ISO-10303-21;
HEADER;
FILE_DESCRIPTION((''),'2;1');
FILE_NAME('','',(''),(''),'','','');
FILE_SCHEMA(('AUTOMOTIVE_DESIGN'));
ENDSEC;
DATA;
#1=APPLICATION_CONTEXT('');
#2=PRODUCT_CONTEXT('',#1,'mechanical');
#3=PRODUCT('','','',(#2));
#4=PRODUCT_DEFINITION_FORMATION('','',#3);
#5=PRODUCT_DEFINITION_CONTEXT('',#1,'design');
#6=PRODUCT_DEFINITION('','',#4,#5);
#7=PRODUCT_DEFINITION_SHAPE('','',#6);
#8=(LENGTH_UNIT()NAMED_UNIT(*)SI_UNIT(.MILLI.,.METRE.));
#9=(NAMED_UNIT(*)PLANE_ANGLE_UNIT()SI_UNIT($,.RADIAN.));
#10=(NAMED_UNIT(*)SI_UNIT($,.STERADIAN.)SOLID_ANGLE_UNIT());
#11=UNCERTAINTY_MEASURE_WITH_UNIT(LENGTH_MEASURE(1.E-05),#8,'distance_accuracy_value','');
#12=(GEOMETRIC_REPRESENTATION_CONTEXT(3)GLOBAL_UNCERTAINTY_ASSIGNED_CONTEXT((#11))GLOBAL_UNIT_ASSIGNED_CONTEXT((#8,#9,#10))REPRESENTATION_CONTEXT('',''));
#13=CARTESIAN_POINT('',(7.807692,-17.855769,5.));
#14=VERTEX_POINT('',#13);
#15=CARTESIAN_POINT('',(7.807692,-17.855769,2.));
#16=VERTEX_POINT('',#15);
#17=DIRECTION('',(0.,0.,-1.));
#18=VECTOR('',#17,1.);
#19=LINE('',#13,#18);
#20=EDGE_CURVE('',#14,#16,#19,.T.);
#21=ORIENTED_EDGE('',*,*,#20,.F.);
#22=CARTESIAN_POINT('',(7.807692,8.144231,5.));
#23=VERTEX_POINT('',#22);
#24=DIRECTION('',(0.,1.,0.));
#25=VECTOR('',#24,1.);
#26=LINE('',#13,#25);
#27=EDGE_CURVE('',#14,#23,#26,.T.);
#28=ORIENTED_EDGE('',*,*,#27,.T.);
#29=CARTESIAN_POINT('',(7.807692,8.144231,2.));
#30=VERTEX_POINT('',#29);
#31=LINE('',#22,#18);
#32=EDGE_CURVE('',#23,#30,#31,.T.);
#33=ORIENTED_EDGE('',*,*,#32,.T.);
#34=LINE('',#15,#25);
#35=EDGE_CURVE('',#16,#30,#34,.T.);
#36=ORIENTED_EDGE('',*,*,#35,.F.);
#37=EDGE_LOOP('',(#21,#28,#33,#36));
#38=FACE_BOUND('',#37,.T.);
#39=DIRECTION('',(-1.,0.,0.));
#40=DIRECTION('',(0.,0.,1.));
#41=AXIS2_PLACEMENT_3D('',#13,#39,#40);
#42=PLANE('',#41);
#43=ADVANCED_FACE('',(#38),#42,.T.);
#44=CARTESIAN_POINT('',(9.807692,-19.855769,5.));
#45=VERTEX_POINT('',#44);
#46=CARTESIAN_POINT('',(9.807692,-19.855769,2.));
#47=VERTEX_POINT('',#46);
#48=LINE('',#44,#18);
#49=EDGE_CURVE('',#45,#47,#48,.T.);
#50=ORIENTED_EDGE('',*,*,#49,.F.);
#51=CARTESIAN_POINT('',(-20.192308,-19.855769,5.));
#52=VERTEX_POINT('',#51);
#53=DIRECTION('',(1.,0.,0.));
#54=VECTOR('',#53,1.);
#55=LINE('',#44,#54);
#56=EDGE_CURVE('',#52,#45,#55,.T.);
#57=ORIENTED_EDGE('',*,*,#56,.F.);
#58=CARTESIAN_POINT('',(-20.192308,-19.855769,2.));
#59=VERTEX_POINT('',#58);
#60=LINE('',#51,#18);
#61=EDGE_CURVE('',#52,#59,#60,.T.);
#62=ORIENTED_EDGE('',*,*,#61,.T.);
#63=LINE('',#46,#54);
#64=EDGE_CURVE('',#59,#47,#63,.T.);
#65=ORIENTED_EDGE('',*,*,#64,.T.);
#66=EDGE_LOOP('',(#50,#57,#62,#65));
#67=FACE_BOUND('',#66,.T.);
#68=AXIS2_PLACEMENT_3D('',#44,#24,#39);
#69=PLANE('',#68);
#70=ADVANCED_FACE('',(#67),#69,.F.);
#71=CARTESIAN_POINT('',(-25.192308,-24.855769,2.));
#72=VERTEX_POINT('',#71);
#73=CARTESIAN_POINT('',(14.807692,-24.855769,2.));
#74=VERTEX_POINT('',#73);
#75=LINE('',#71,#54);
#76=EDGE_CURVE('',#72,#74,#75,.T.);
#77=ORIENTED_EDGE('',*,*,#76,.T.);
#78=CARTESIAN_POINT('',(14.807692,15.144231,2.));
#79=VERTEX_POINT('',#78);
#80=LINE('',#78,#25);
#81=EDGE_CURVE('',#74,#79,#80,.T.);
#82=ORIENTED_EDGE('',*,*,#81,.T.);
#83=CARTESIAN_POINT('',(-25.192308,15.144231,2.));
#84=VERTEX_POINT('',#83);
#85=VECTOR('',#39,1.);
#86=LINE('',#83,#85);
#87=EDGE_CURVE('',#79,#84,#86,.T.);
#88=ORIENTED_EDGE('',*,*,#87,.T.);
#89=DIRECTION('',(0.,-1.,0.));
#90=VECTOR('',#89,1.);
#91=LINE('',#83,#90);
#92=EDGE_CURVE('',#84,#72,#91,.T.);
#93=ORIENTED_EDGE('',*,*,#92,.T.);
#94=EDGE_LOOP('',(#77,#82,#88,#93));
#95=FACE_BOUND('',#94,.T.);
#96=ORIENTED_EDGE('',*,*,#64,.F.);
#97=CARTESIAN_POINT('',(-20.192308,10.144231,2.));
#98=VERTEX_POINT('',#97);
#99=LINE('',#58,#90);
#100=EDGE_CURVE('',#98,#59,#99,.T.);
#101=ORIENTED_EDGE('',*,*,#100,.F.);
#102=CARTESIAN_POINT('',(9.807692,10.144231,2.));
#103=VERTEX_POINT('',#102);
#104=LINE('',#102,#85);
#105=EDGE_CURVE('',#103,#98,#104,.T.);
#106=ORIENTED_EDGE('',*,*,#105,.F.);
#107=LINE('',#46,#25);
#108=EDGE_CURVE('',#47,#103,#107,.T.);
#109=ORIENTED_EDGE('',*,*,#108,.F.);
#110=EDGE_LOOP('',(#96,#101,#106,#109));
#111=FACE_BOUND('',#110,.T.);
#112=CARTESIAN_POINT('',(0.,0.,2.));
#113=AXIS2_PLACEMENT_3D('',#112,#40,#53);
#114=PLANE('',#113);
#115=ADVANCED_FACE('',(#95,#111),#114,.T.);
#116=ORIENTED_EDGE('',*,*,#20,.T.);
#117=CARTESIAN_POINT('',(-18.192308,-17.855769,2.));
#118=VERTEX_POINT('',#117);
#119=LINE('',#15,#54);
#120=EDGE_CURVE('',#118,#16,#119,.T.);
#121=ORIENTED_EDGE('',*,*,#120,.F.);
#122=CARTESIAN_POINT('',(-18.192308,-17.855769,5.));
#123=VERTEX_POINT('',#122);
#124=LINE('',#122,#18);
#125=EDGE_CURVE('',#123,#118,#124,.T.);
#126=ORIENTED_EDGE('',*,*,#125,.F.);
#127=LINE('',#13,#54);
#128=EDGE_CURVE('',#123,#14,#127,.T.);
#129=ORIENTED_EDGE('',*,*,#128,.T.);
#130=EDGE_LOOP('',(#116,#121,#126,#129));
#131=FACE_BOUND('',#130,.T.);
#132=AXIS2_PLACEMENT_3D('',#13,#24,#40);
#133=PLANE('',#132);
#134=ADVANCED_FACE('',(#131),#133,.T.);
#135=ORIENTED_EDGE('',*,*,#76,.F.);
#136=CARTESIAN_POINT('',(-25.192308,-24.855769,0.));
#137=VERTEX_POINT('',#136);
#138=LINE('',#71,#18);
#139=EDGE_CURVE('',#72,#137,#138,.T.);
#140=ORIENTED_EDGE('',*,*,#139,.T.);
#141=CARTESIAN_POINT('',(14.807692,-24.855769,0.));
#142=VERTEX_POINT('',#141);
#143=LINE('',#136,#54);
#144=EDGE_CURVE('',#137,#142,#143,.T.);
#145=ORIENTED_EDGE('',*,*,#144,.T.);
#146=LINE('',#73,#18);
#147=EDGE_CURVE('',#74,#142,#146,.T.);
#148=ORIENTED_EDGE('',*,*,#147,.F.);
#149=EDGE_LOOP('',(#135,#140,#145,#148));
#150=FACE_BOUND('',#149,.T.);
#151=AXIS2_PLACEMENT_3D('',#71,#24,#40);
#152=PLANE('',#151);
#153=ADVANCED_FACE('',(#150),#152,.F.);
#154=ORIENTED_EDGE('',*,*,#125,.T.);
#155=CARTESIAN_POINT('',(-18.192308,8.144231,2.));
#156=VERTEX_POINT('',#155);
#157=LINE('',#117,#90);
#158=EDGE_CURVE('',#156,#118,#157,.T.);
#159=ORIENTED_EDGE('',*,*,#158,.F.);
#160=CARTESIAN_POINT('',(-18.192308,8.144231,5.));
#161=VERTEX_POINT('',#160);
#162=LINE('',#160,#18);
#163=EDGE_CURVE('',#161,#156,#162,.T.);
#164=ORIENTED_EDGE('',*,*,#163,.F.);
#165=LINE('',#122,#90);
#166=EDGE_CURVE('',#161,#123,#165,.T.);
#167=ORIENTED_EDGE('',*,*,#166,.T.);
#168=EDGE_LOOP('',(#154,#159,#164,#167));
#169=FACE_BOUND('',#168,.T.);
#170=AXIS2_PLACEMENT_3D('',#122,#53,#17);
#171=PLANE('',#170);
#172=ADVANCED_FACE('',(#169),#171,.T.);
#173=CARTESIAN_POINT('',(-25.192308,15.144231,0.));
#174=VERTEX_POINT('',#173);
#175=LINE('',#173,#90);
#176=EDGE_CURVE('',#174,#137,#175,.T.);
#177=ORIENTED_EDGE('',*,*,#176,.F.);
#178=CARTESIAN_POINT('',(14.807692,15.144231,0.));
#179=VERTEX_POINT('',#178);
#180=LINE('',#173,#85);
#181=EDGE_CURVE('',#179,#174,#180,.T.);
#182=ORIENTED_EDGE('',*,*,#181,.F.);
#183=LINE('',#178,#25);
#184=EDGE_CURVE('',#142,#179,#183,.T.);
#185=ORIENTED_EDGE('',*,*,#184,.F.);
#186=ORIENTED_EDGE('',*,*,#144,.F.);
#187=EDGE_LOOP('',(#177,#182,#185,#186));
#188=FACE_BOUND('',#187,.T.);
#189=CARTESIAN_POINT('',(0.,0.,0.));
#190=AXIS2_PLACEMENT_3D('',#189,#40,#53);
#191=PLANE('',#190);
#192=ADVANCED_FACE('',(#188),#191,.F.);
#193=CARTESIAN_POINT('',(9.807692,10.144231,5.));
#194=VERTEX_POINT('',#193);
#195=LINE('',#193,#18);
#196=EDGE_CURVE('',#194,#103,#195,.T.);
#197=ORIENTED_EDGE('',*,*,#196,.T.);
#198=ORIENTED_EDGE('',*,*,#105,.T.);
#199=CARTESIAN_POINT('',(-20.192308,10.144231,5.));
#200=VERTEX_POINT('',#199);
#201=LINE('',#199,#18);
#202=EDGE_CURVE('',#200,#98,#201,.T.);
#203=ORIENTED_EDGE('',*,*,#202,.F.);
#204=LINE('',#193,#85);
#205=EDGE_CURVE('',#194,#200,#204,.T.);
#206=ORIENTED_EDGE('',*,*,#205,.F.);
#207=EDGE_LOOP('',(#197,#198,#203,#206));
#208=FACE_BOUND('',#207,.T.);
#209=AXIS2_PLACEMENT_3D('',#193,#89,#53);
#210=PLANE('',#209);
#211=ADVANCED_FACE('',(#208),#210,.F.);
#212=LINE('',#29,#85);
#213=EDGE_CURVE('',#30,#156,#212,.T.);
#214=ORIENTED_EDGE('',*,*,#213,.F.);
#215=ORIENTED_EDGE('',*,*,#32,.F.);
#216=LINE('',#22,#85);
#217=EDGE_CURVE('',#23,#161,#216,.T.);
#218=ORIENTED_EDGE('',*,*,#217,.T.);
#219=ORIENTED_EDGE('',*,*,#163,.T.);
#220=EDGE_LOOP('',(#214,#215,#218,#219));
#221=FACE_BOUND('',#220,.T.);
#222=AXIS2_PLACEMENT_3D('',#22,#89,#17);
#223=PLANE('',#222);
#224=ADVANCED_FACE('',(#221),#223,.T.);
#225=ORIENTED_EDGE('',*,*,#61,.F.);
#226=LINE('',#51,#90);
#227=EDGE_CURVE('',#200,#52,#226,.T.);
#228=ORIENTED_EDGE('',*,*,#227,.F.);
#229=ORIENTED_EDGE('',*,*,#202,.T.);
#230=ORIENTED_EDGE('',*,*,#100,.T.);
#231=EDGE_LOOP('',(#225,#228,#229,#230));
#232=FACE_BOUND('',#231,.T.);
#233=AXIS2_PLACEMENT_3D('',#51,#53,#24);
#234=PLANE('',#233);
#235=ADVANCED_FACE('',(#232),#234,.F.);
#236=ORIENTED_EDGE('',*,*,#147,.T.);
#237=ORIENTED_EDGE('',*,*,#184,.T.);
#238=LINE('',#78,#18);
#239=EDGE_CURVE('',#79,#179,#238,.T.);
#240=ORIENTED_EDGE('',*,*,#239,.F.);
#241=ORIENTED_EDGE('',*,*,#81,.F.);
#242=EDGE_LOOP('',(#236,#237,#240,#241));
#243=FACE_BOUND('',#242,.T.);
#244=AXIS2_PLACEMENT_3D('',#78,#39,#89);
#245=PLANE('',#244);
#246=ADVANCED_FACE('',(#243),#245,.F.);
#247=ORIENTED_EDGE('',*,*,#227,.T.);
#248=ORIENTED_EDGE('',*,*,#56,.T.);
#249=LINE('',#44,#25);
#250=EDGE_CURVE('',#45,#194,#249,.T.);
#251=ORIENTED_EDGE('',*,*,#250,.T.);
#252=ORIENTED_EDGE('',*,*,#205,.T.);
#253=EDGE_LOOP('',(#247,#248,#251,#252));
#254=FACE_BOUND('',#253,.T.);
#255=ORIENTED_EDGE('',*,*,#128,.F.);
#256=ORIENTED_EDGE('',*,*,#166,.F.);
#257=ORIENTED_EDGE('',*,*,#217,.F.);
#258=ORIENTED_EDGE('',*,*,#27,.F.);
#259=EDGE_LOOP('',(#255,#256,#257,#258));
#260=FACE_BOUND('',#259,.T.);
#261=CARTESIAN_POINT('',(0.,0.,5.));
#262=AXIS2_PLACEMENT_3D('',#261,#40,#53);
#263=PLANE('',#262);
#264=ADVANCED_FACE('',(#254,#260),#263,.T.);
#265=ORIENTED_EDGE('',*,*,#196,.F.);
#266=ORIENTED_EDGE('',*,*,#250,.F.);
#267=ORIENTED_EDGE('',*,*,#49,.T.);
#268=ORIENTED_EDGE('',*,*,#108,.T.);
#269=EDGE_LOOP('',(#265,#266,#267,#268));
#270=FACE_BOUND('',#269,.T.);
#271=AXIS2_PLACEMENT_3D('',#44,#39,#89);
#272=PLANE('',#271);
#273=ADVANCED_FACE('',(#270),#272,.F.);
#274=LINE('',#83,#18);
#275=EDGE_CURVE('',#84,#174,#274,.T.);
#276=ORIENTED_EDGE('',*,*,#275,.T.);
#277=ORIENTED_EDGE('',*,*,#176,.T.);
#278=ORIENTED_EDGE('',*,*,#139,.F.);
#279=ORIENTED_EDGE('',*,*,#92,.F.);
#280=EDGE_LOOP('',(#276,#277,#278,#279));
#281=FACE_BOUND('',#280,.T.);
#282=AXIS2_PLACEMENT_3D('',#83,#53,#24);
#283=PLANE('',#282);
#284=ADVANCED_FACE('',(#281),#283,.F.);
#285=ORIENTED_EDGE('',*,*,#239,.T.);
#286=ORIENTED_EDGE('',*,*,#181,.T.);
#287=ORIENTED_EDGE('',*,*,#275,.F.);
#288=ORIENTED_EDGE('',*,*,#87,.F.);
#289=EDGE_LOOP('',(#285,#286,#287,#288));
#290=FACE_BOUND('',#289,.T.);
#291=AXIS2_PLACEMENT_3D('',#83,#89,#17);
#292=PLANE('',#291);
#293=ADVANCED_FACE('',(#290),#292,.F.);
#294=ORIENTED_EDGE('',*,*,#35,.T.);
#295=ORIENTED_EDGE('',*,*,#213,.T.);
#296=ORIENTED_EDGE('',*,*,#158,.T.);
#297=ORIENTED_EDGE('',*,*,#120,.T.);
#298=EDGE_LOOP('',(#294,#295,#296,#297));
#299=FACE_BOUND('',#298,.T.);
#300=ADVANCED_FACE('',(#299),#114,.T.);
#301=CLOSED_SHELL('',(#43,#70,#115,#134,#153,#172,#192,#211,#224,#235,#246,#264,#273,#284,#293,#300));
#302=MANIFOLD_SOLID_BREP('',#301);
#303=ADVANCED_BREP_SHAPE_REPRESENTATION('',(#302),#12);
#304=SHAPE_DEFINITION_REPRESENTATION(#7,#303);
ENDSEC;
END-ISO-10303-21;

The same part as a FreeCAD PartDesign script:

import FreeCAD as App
import Part
import Sketcher

V = App.Vector
Q = App.Units.Quantity

doc = App.newDocument("Part")
body = doc.addObject("PartDesign::Body", "Body")

# Sketch on XY plane
sketch1 = body.newObject("Sketcher::SketchObject", "Sketch")
sketch1.AttachmentSupport = (doc.getObject("XY_Plane"), [""])
sketch1.MapMode = "FlatFace"
sketch1.addGeometry(Part.LineSegment(V(-25, 15, 0), V(-25, -25, 0)), False)
sketch1.addGeometry(Part.LineSegment(V(-25, -25, 0), V(15, -25, 0)), False)
sketch1.addGeometry(Part.LineSegment(V(15, -25, 0), V(15, 15, 0)), False)
sketch1.addGeometry(Part.LineSegment(V(15, 15, 0), V(-25, 15, 0)), False)
sketch1.addConstraint(Sketcher.Constraint("Coincident", 0, 2, 1, 1))
sketch1.addConstraint(Sketcher.Constraint("Coincident", 1, 2, 2, 1))
sketch1.addConstraint(Sketcher.Constraint("Coincident", 2, 2, 3, 1))
sketch1.addConstraint(Sketcher.Constraint("Coincident", 3, 2, 0, 1))
sketch1.addConstraint(Sketcher.Constraint("Vertical", 0))
sketch1.addConstraint(Sketcher.Constraint("Horizontal", 1))
sketch1.addConstraint(Sketcher.Constraint("Vertical", 2))
sketch1.addConstraint(Sketcher.Constraint("Horizontal", 3))
sketch1.addConstraint(Sketcher.Constraint("Equal", 3, 0))
sketch1.addConstraint(Sketcher.Constraint("DistanceX", 1, 1, 1, 2, Q("40 mm")))
sketch1.addConstraint(Sketcher.Constraint("DistanceY", 0, 2, -1, 1, Q("24.855769 mm")))
sketch1.addConstraint(Sketcher.Constraint("DistanceX", 0, 2, -1, 1, Q("25.192308 mm")))
pad1 = body.newObject("PartDesign::Pad", "Pad")
pad1.Profile = sketch1
pad1.Length = 2

# Sketch on XY plane
sketch2 = body.newObject("Sketcher::SketchObject", "Sketch001")
sketch2.AttachmentSupport = (doc.getObject("XY_Plane"), [""])
sketch2.MapMode = "FlatFace"
sketch2.AttachmentOffset = App.Placement(V(0, 0, 2), App.Rotation())
sketch2.addGeometry(Part.LineSegment(V(-20, 10, 0), V(-20, -20, 0)), False)
sketch2.addGeometry(Part.LineSegment(V(-20, -20, 0), V(10, -20, 0)), False)
sketch2.addGeometry(Part.LineSegment(V(10, -20, 0), V(10, 10, 0)), False)
sketch2.addGeometry(Part.LineSegment(V(10, 10, 0), V(-20, 10, 0)), False)
sketch2.addGeometry(Part.LineSegment(V(8, -18, 0), V(-18, -18, 0)), False)
sketch2.addGeometry(Part.LineSegment(V(-18, -18, 0), V(-18, 8, 0)), False)
sketch2.addGeometry(Part.LineSegment(V(-18, 8, 0), V(8, 8, 0)), False)
sketch2.addGeometry(Part.LineSegment(V(8, 8, 0), V(8, -18, 0)), False)
sketch2.addConstraint(Sketcher.Constraint("Coincident", 0, 2, 1, 1))
sketch2.addConstraint(Sketcher.Constraint("Coincident", 1, 2, 2, 1))
sketch2.addConstraint(Sketcher.Constraint("Coincident", 2, 2, 3, 1))
sketch2.addConstraint(Sketcher.Constraint("Coincident", 3, 2, 0, 1))
sketch2.addConstraint(Sketcher.Constraint("Coincident", 4, 2, 5, 1))
sketch2.addConstraint(Sketcher.Constraint("Coincident", 5, 2, 6, 1))
sketch2.addConstraint(Sketcher.Constraint("Coincident", 6, 2, 7, 1))
sketch2.addConstraint(Sketcher.Constraint("Coincident", 7, 2, 4, 1))
sketch2.addConstraint(Sketcher.Constraint("Vertical", 0))
sketch2.addConstraint(Sketcher.Constraint("Horizontal", 1))
sketch2.addConstraint(Sketcher.Constraint("Vertical", 2))
sketch2.addConstraint(Sketcher.Constraint("Horizontal", 3))
sketch2.addConstraint(Sketcher.Constraint("Horizontal", 4))
sketch2.addConstraint(Sketcher.Constraint("Vertical", 5))
sketch2.addConstraint(Sketcher.Constraint("Horizontal", 6))
sketch2.addConstraint(Sketcher.Constraint("Vertical", 7))
sketch2.addConstraint(Sketcher.Constraint("Equal", 3, 0))
sketch2.addConstraint(Sketcher.Constraint("Equal", 6, 5))
sketch2.addConstraint(Sketcher.Constraint("DistanceX", 1, 1, 1, 2, Q("30 mm")))
sketch2.addConstraint(Sketcher.Constraint("DistanceX", 4, 2, 4, 1, Q("26 mm")))
sketch2.addConstraint(Sketcher.Constraint("DistanceX", 0, 2, 4, 2, Q("2 mm")))
sketch2.addConstraint(Sketcher.Constraint("DistanceY", 0, 2, 4, 2, Q("2 mm")))
sketch2.addConstraint(Sketcher.Constraint("DistanceY", 0, 2, -1, 1, Q("19.855769 mm")))
sketch2.addConstraint(Sketcher.Constraint("DistanceX", 0, 2, -1, 1, Q("20.192308 mm")))
pad2 = body.newObject("PartDesign::Pad", "Pad001")
pad2.Profile = sketch2
pad2.Length = 3

doc.recompute()
